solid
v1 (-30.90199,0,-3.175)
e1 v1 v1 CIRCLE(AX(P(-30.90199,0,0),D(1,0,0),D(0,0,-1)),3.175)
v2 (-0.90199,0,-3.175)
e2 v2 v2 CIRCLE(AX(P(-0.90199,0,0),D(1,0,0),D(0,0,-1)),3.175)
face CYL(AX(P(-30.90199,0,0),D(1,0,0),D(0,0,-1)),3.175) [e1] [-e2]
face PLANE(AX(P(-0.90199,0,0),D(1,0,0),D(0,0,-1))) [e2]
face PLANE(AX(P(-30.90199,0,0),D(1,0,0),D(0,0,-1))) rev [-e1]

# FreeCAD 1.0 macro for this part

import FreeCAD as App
import Part
import Sketcher
from FreeCAD import Vector
Q = App.Units.Quantity

doc = App.newDocument("Part")
params = doc.addObject("Spreadsheet::Sheet", "Params")
for row, (alias, value) in enumerate([
    ("sketch1_diameter", "6.35 mm"),
    ("sketch2_width", "30 mm"),
], start=1):
    params.set(f"A{row}", alias)
    params.set(f"B{row}", "=" + value)
    params.setAlias(f"B{row}", alias)

body = doc.addObject("PartDesign::Body", "Body")

# Sketch on YZ plane
sketch1 = body.newObject("Sketcher::SketchObject", "Sketch")
sketch1.AttachmentSupport = (doc.getObject("YZ_Plane"), [""])
sketch1.MapMode = "FlatFace"
sketch1.AttachmentOffset = App.Placement(Vector(0, 0, -30.90199), App.Rotation())
sketch1.addGeometry(Part.Circle(Vector(0, 0, 0), Vector(0, 0, 1), 3.2), False)
sketch1.addConstraint(Sketcher.Constraint("Coincident", 0, 3, -1, 1))
sketch1.addConstraint(Sketcher.Constraint("Diameter", 0, Q("6.35 mm")))
sketch1.setExpression("Constraints[1]", "Params.sketch1_diameter")

# Sketch on XY plane
sketch2 = body.newObject("Sketcher::SketchObject", "Sketch001")
sketch2.AttachmentSupport = (doc.getObject("XY_Plane"), [""])
sketch2.MapMode = "FlatFace"
sketch2.addGeometry(Part.LineSegment(Vector(-31, 0, 0), Vector(-1, 0, 0)), False)
sketch2.addConstraint(Sketcher.Constraint("Horizontal", 0))
sketch2.addConstraint(Sketcher.Constraint("PointOnObject", 0, 1, -1))
sketch2.addConstraint(Sketcher.Constraint("DistanceX", 0, 1, 0, 2, Q("30 mm")))
sketch2.addConstraint(Sketcher.Constraint("DistanceX", 0, 1, -1, 1, Q("30.90199 mm")))
sketch2.setExpression("Constraints[2]", "Params.sketch2_width")
doc.recompute()

additivepipe = body.newObject("PartDesign::AdditivePipe", "AdditivePipe")
additivepipe.Profile = sketch1
additivepipe.Spine = (sketch2, ["Edge1"])

doc.recompute()
